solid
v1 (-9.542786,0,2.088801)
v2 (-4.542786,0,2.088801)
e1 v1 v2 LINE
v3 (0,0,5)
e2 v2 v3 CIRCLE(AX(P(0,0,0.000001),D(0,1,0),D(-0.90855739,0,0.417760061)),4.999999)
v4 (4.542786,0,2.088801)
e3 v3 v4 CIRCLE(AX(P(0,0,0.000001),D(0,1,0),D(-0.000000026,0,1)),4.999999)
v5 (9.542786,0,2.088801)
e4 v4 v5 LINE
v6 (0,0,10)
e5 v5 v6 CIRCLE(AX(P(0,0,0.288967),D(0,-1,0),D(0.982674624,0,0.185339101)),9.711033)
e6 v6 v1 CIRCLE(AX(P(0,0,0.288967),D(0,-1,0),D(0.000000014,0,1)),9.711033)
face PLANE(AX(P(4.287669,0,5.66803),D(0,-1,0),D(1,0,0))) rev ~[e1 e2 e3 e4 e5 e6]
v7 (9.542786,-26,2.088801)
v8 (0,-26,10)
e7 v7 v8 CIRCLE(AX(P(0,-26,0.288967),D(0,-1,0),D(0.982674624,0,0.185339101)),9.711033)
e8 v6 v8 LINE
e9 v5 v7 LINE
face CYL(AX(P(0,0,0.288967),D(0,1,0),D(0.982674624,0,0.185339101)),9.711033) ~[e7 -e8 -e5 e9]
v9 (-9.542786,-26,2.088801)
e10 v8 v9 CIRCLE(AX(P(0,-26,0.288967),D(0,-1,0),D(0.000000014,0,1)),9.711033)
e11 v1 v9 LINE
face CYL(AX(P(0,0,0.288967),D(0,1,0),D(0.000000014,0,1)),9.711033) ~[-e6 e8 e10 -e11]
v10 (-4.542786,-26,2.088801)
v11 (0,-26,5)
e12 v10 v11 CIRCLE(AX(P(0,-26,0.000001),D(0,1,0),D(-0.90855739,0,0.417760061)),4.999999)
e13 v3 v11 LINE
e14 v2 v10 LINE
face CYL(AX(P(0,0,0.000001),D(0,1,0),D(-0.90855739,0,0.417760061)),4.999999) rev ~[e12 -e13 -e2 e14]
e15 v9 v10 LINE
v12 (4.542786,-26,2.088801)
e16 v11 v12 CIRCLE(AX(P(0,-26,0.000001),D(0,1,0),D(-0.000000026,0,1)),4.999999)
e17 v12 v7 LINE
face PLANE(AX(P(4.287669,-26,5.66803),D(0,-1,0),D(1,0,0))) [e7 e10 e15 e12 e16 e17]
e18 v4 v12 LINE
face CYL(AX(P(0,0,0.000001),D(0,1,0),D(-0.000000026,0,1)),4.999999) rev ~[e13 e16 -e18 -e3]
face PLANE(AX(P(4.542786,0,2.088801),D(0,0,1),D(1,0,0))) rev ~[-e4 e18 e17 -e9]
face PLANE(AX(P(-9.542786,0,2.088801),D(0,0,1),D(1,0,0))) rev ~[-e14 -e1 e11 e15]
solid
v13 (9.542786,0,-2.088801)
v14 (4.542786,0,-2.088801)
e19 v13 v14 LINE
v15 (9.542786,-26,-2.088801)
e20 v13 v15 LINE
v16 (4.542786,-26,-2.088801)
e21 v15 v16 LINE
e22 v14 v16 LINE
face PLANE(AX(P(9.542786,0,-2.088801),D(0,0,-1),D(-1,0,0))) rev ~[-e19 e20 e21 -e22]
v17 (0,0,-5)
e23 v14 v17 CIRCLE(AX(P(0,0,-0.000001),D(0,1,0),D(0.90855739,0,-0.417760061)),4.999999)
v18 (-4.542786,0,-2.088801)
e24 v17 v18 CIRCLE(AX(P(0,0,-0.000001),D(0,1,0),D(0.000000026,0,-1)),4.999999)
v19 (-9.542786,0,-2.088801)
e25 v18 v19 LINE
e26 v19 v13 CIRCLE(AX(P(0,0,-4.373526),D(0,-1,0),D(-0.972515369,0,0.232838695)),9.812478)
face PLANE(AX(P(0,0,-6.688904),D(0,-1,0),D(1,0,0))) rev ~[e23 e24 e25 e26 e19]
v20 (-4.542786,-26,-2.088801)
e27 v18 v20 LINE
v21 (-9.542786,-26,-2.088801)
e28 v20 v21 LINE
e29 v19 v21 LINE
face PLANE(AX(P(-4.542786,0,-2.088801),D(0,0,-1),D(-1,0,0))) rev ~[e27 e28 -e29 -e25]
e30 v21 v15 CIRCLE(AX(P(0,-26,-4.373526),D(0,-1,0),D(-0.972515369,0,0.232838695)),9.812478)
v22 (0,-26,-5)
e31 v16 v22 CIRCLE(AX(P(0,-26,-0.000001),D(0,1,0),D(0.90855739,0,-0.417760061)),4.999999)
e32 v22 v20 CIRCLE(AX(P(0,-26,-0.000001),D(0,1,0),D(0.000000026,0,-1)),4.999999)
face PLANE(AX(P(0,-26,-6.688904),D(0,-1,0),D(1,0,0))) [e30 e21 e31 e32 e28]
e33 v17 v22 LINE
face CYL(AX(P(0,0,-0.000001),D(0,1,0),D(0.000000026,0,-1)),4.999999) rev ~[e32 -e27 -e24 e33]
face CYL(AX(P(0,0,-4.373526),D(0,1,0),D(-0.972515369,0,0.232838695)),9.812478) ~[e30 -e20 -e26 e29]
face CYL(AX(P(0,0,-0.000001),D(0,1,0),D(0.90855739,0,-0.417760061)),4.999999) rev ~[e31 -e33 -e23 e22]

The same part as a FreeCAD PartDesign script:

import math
import FreeCAD as App
import Part
import Sketcher

V = App.Vector

doc = App.newDocument("Part")
body = doc.addObject("PartDesign::Body", "Body")
body.AllowCompound = True

# Sketch on XZ plane
sketch1 = body.newObject("Sketcher::SketchObject", "Sketch")
sketch1.AttachmentSupport = (doc.getObject("XZ_Plane"), [""])
sketch1.MapMode = "FlatFace"
sketch1.addGeometry([
    Part.ArcOfCircle(Part.Circle(V(0, 0, 0), V(0, 0, 1), 5), math.radians(25), math.radians(90)),  # 0
    Part.LineSegment(V(4.5, 2.1, 0), V(9.5, 2.1, 0)),  # 1
    Part.ArcOfCircle(Part.Circle(V(0, 0.3, 0), V(0, 0, 1), 9.7), math.radians(11), math.radians(90)),  # 2
    Part.ArcOfCircle(Part.Circle(V(0, 0.3, 0), V(0, 0, 1), 9.7), math.radians(90), math.radians(169)),  # 3
    Part.LineSegment(V(-9.5, 2.1, 0), V(-4.5, 2.1, 0)),  # 4
    Part.ArcOfCircle(Part.Circle(V(0, 0, 0), V(0, 0, 1), 5), math.radians(90), math.radians(155)),  # 5
    Part.LineSegment(V(9.5, -2.1, 0), V(4.5, -2.1, 0)),  # 6
    Part.ArcOfCircle(Part.Circle(V(0, 0, 0), V(0, 0, 1), 5), math.radians(-90), math.radians(-25)),  # 7
    Part.ArcOfCircle(Part.Circle(V(0, 0, 0), V(0, 0, 1), 5), math.radians(-155), math.radians(-90)),  # 8
    Part.LineSegment(V(-4.5, -2.1, 0), V(-9.5, -2.1, 0)),  # 9
    Part.ArcOfCircle(Part.Circle(V(0, -4.4, 0), V(0, 0, 1), 9.8), math.radians(167), math.radians(373)),  # 10
], False)
sketch1.addConstraint([
    Sketcher.Constraint("Coincident", 0, 1, 1, 1),
    Sketcher.Constraint("Coincident", 1, 2, 2, 1),
    Sketcher.Constraint("Tangent", 2, 2, 3, 1),
    Sketcher.Constraint("Coincident", 3, 2, 4, 1),
    Sketcher.Constraint("Coincident", 4, 2, 5, 2),
    Sketcher.Constraint("Tangent", 5, 1, 0, 2),
    Sketcher.Constraint("Coincident", 6, 2, 7, 2),
    Sketcher.Constraint("Tangent", 7, 1, 8, 2),
    Sketcher.Constraint("Coincident", 8, 1, 9, 1),
    Sketcher.Constraint("Coincident", 9, 2, 10, 1),
    Sketcher.Constraint("Coincident", 10, 2, 6, 1),
    Sketcher.Constraint("Horizontal", 1),
    Sketcher.Constraint("Horizontal", 4),
    Sketcher.Constraint("Horizontal", 6),
    Sketcher.Constraint("Horizontal", 9),
    Sketcher.Constraint("Coincident", 0, 3, -1, 1),
    Sketcher.Constraint("Coincident", 7, 3, -1, 1),
    Sketcher.Constraint("Equal", 2, 3),
    Sketcher.Constraint("Equal", 0, 5),
    Sketcher.Constraint("Equal", 5, 7),
    Sketcher.Constraint("Equal", 7, 8),
    Sketcher.Constraint("Symmetric", 1, 2, 9, 2, -1, 1),
    Sketcher.Constraint("Symmetric", 3, 2, 10, 2, -1, 1),
    Sketcher.Constraint("Symmetric", 1, 2, 3, 2, -2),
    Sketcher.Constraint("PointOnObject", 2, 2, -2),
    Sketcher.Constraint("PointOnObject", 5, 1, -2),
    Sketcher.Constraint("PointOnObject", 7, 1, -2),
    Sketcher.Constraint("Radius", 0, 4.999999),
    Sketcher.Constraint("DistanceX", 1, 1, 1, 2, 5.0),
    Sketcher.Constraint("DistanceY", -1, 1, 2, 2, 10.0),
    Sketcher.Constraint("Radius", 10, 9.812478),
    Sketcher.Constraint("Radius", 2, 9.711033),
])
pad1 = body.newObject("PartDesign::Pad", "Pad")
pad1.Profile = sketch1
pad1.Length = 26

doc.recompute()
